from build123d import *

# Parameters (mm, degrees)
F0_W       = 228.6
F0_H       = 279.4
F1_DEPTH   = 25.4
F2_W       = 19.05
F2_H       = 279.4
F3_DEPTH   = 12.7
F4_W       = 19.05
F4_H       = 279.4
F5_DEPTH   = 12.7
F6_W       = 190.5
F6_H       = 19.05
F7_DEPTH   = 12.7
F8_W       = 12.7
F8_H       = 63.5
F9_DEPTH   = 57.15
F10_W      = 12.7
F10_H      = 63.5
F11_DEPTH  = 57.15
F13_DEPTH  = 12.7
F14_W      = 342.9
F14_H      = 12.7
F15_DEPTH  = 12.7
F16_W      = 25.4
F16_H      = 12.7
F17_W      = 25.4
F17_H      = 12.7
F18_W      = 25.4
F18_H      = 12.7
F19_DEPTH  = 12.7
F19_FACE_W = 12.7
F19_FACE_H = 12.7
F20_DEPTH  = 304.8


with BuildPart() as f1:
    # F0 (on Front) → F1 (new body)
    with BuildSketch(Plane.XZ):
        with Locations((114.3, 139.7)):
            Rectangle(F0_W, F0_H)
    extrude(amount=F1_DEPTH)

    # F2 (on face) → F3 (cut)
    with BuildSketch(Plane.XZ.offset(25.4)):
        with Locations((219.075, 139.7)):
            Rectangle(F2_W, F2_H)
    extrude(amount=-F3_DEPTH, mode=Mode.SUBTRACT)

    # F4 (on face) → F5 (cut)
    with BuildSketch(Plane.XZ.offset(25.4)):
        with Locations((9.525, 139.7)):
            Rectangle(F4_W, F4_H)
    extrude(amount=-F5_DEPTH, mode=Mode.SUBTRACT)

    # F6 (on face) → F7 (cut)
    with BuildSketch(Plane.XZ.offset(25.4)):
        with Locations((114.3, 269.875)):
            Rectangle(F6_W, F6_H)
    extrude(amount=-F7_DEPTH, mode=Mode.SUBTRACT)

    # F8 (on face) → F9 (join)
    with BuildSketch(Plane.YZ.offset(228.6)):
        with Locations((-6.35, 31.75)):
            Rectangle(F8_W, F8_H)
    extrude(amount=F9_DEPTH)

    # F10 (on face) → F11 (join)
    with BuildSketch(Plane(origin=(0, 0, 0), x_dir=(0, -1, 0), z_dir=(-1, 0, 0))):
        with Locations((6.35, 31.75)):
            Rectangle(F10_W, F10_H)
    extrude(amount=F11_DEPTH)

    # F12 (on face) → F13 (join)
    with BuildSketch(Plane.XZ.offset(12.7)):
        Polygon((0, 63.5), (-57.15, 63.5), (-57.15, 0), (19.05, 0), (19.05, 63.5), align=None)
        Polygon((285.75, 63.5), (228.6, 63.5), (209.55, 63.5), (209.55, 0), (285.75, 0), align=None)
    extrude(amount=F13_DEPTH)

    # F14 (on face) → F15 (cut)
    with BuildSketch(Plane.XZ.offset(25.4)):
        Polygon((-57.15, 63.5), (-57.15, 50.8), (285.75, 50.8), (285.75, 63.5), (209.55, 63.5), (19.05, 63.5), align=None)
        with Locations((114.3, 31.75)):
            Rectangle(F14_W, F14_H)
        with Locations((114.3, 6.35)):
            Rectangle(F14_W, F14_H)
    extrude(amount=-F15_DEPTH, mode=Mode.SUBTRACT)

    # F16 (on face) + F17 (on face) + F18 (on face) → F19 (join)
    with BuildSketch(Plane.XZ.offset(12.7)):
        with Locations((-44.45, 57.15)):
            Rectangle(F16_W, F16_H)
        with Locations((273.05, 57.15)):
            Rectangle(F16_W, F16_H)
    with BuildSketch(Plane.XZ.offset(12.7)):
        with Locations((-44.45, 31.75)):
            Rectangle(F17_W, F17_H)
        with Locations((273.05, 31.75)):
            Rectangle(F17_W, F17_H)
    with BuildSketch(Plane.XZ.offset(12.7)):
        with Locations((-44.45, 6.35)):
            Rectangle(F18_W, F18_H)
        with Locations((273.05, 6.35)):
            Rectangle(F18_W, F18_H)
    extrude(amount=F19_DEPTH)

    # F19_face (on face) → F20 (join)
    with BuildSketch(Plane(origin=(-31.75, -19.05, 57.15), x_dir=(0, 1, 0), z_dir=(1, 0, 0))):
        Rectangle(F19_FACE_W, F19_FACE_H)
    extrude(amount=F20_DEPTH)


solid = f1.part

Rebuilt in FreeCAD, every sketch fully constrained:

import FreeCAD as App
import Part
import Sketcher
from FreeCAD import Vector
Q = App.Units.Quantity


def add_polygon(sketch, points):
    """Adds a closed chain of lines whose ends are joined by coincident constraints."""
    first, n = sketch.GeometryCount, len(points)
    for a, b in zip(points, points[1:] + points[:1]):
        sketch.addGeometry(Part.LineSegment(App.Vector(*a, 0), App.Vector(*b, 0)), False)
    for i in range(n):
        sketch.addConstraint(Sketcher.Constraint("Coincident", first + i, 2, first + (i + 1) % n, 1))

doc = App.newDocument("Part")
params = doc.addObject("Spreadsheet::Sheet", "Params")
for row, (alias, value) in enumerate([
    ("sketch1_width", "9 in"),
    ("sketch1_height", "11 in"),
    ("pad1_length", "1 in"),
    ("sketch2_height", "11 in"),
    ("sketch2_width", "0.75 in"),
    ("pocket1_length", "0.5 in"),
    ("sketch3_height", "11 in"),
    ("sketch3_width", "0.75 in"),
    ("pocket2_length", "0.5 in"),
    ("sketch4_width", "7.5 in"),
    ("sketch4_height", "0.75 in"),
    ("pocket3_length", "0.5 in"),
    ("sketch5_width", "0.5 in"),
    ("sketch5_height", "2.5 in"),
    ("pad2_length", "2.25 in"),
    ("sketch6_width", "0.5 in"),
    ("sketch6_height", "2.5 in"),
    ("pad3_length", "2.25 in"),
    ("sketch7_width", "3 in"),
    ("sketch7_height", "2.5 in"),
    ("pad4_length", "0.5 in"),
    ("sketch8_width", "13.5 in"),
    ("sketch8_height", "0.5 in"),
    ("pocket4_length", "0.5 in"),
    ("sketch9_width", "1 in"),
    ("sketch9_height", "0.5 in"),
    ("pad5_length", "0.5 in"),
    ("sketch10_width", "0.5 in"),
    ("pad6_length", "12 in"),
], start=1):
    params.set(f"A{row}", alias)
    params.set(f"B{row}", "=" + value)
    params.setAlias(f"B{row}", alias)

body = doc.addObject("PartDesign::Body", "Body")

sketch1 = doc.addObject("Sketcher::SketchObject", "Sketch")
body.addObject(sketch1)
sketch1.AttachmentSupport = (doc.XZ_Plane, [""])
sketch1.MapMode = "FlatFace"
add_polygon(sketch1, [(0, 279.4), (0, 0), (228.6, 0), (228.6, 279.4)])
sketch1.addConstraint(Sketcher.Constraint("Vertical", 0))
sketch1.addConstraint(Sketcher.Constraint("Horizontal", 1))
sketch1.addConstraint(Sketcher.Constraint("Vertical", 2))
sketch1.addConstraint(Sketcher.Constraint("Horizontal", 3))
sketch1.addConstraint(Sketcher.Constraint("Coincident", 0, 2, -1, 1))
sketch1.addConstraint(Sketcher.Constraint("DistanceX", 1, 1, 1, 2, Q("9 in")))
sketch1.addConstraint(Sketcher.Constraint("DistanceY", 0, 2, 0, 1, Q("11 in")))
sketch1.setExpression("Constraints[9]", "Params.sketch1_width")
sketch1.setExpression("Constraints[10]", "Params.sketch1_height")
pad1 = doc.addObject("PartDesign::Pad", "Pad")
body.addObject(pad1)
pad1.Profile = sketch1
pad1.setExpression("Length", "Params.pad1_length")

sketch2 = doc.addObject("Sketcher::SketchObject", "Sketch001")
body.addObject(sketch2)
sketch2.AttachmentSupport = (doc.XZ_Plane, [""])
sketch2.MapMode = "FlatFace"
sketch2.AttachmentOffset = App.Placement(Vector(0, 0, 1 * 25.4), App.Rotation())
add_polygon(sketch2, [(209.55, 279.4), (209.55, 0), (228.6, 0), (228.6, 279.4)])
sketch2.addConstraint(Sketcher.Constraint("Vertical", 0))
sketch2.addConstraint(Sketcher.Constraint("Horizontal", 1))
sketch2.addConstraint(Sketcher.Constraint("Vertical", 2))
sketch2.addConstraint(Sketcher.Constraint("Horizontal", 3))
sketch2.addConstraint(Sketcher.Constraint("PointOnObject", 0, 2, -1))
sketch2.addConstraint(Sketcher.Constraint("DistanceY", 0, 2, 0, 1, Q("11 in")))
sketch2.addConstraint(Sketcher.Constraint("DistanceX", -1, 1, 1, 2, Q("9 in")))
sketch2.addConstraint(Sketcher.Constraint("DistanceX", 1, 1, 1, 2, Q("0.75 in")))
sketch2.setExpression("Constraints[9]", "Params.sketch2_height")
sketch2.setExpression("Constraints[11]", "Params.sketch2_width")
pocket1 = doc.addObject("PartDesign::Pocket", "Pocket")
body.addObject(pocket1)
pocket1.Profile = sketch2
pocket1.setExpression("Length", "Params.pocket1_length")

sketch3 = doc.addObject("Sketcher::SketchObject", "Sketch002")
body.addObject(sketch3)
sketch3.AttachmentSupport = (doc.XZ_Plane, [""])
sketch3.MapMode = "FlatFace"
sketch3.AttachmentOffset = App.Placement(Vector(0, 0, 1 * 25.4), App.Rotation())
add_polygon(sketch3, [(0, 279.4), (0, 0), (19.05, 0), (19.05, 279.4)])
sketch3.addConstraint(Sketcher.Constraint("Vertical", 0))
sketch3.addConstraint(Sketcher.Constraint("Horizontal", 1))
sketch3.addConstraint(Sketcher.Constraint("Vertical", 2))
sketch3.addConstraint(Sketcher.Constraint("Horizontal", 3))
sketch3.addConstraint(Sketcher.Constraint("Coincident", 0, 2, -1, 1))
sketch3.addConstraint(Sketcher.Constraint("DistanceY", 0, 2, 0, 1, Q("11 in")))
sketch3.addConstraint(Sketcher.Constraint("DistanceX", 1, 1, 1, 2, Q("0.75 in")))
sketch3.setExpression("Constraints[9]", "Params.sketch3_height")
sketch3.setExpression("Constraints[10]", "Params.sketch3_width")
pocket2 = doc.addObject("PartDesign::Pocket", "Pocket001")
body.addObject(pocket2)
pocket2.Profile = sketch3
pocket2.setExpression("Length", "Params.pocket2_length")

sketch4 = doc.addObject("Sketcher::SketchObject", "Sketch003")
body.addObject(sketch4)
sketch4.AttachmentSupport = (doc.XZ_Plane, [""])
sketch4.MapMode = "FlatFace"
sketch4.AttachmentOffset = App.Placement(Vector(0, 0, 1 * 25.4), App.Rotation())
add_polygon(sketch4, [(19.05, 279.4), (19.05, 260.35), (209.55, 260.35), (209.55, 279.4)])
sketch4.addConstraint(Sketcher.Constraint("Vertical", 0))
sketch4.addConstraint(Sketcher.Constraint("Horizontal", 1))
sketch4.addConstraint(Sketcher.Constraint("Vertical", 2))
sketch4.addConstraint(Sketcher.Constraint("Horizontal", 3))
sketch4.addConstraint(Sketcher.Constraint("DistanceX", 1, 1, 1, 2, Q("7.5 in")))
sketch4.addConstraint(Sketcher.Constraint("DistanceY", -1, 1, 2, 2, Q("11 in")))
sketch4.addConstraint(Sketcher.Constraint("DistanceY", 0, 2, 0, 1, Q("0.75 in")))
sketch4.addConstraint(Sketcher.Constraint("DistanceX", -1, 1, 0, 2, Q("0.75 in")))
sketch4.setExpression("Constraints[8]", "Params.sketch4_width")
sketch4.setExpression("Constraints[10]", "Params.sketch4_height")
pocket3 = doc.addObject("PartDesign::Pocket", "Pocket002")
body.addObject(pocket3)
pocket3.Profile = sketch4
pocket3.setExpression("Length", "Params.pocket3_length")

sketch5 = doc.addObject("Sketcher::SketchObject", "Sketch004")
body.addObject(sketch5)
sketch5.AttachmentSupport = (doc.YZ_Plane, [""])
sketch5.MapMode = "FlatFace"
sketch5.AttachmentOffset = App.Placement(Vector(0, 0, 9 * 25.4), App.Rotation())
add_polygon(sketch5, [(-12.7, 63.5), (-12.7, 0), (0, 0), (0, 63.5)])
sketch5.addConstraint(Sketcher.Constraint("Vertical", 0))
sketch5.addConstraint(Sketcher.Constraint("Horizontal", 1))
sketch5.addConstraint(Sketcher.Constraint("Vertical", 2))
sketch5.addConstraint(Sketcher.Constraint("Horizontal", 3))
sketch5.addConstraint(Sketcher.Constraint("Coincident", 1, 2, -1, 1))
sketch5.addConstraint(Sketcher.Constraint("DistanceX", 1, 1, 1, 2, Q("0.5 in")))
sketch5.addConstraint(Sketcher.Constraint("DistanceY", 0, 2, 0, 1, Q("2.5 in")))
sketch5.setExpression("Constraints[9]", "Params.sketch5_width")
sketch5.setExpression("Constraints[10]", "Params.sketch5_height")
pad2 = doc.addObject("PartDesign::Pad", "Pad001")
body.addObject(pad2)
pad2.Profile = sketch5
pad2.setExpression("Length", "Params.pad2_length")

sketch6 = doc.addObject("Sketcher::SketchObject", "Sketch005")
body.addObject(sketch6)
sketch6.AttachmentSupport = (doc.YZ_Plane, [""])
sketch6.MapMode = "FlatFace"
add_polygon(sketch6, [(0, 63.5), (0, 0), (-12.7, 0), (-12.7, 63.5)])
sketch6.addConstraint(Sketcher.Constraint("Vertical", 0))
sketch6.addConstraint(Sketcher.Constraint("Horizontal", 1))
sketch6.addConstraint(Sketcher.Constraint("Vertical", 2))
sketch6.addConstraint(Sketcher.Constraint("Horizontal", 3))
sketch6.addConstraint(Sketcher.Constraint("Coincident", 0, 2, -1, 1))
sketch6.addConstraint(Sketcher.Constraint("DistanceX", 1, 2, 1, 1, Q("0.5 in")))
sketch6.addConstraint(Sketcher.Constraint("DistanceY", 0, 2, 0, 1, Q("2.5 in")))
sketch6.setExpression("Constraints[9]", "Params.sketch6_width")
sketch6.setExpression("Constraints[10]", "Params.sketch6_height")
pad3 = doc.addObject("PartDesign::Pad", "Pad002")
body.addObject(pad3)
pad3.Profile = sketch6
pad3.setExpression("Length", "Params.pad3_length")
pad3.Reversed = True

sketch7 = doc.addObject("Sketcher::SketchObject", "Sketch006")
body.addObject(sketch7)
sketch7.AttachmentSupport = (doc.XZ_Plane, [""])
sketch7.MapMode = "FlatFace"
sketch7.AttachmentOffset = App.Placement(Vector(0, 0, 0.5 * 25.4), App.Rotation())
add_polygon(sketch7, [(-57.15, 63.5), (-57.15, 0), (19.05, 0), (19.05, 63.5)])
add_polygon(sketch7, [(285.75, 63.5), (209.55, 63.5), (209.55, 0), (285.75, 0)])
sketch7.addConstraint(Sketcher.Constraint("Vertical", 0))
sketch7.addConstraint(Sketcher.Constraint("Horizontal", 1))
sketch7.addConstraint(Sketcher.Constraint("Vertical", 2))
sketch7.addConstraint(Sketcher.Constraint("Horizontal", 3))
sketch7.addConstraint(Sketcher.Constraint("Horizontal", 4))
sketch7.addConstraint(Sketcher.Constraint("Vertical", 5))
sketch7.addConstraint(Sketcher.Constraint("Horizontal", 6))
sketch7.addConstraint(Sketcher.Constraint("Vertical", 7))
sketch7.addConstraint(Sketcher.Constraint("PointOnObject", 0, 2, -1))
sketch7.addConstraint(Sketcher.Constraint("PointOnObject", 5, 2, -1))
sketch7.addConstraint(Sketcher.Constraint("Horizontal", 3, 2, 4, 2))
sketch7.addConstraint(Sketcher.Constraint("Equal", 3, 4))
sketch7.addConstraint(Sketcher.Constraint("DistanceX", 1, 1, 1, 2, Q("3 in")))
sketch7.addConstraint(Sketcher.Constraint("DistanceY", 0, 2, 0, 1, Q("2.5 in")))
sketch7.addConstraint(Sketcher.Constraint("DistanceX", 2, 2, 4, 2, Q("7.5 in")))
sketch7.addConstraint(Sketcher.Constraint("DistanceX", 0, 2, -1, 1, Q("2.25 in")))
sketch7.setExpression("Constraints[20]", "Params.sketch7_width")
sketch7.setExpression("Constraints[21]", "Params.sketch7_height")
pad4 = doc.addObject("PartDesign::Pad", "Pad003")
body.addObject(pad4)
pad4.Profile = sketch7
pad4.setExpression("Length", "Params.pad4_length")

sketch8 = doc.addObject("Sketcher::SketchObject", "Sketch007")
body.addObject(sketch8)
sketch8.AttachmentSupport = (doc.XZ_Plane, [""])
sketch8.MapMode = "FlatFace"
sketch8.AttachmentOffset = App.Placement(Vector(0, 0, 1 * 25.4), App.Rotation())
add_polygon(sketch8, [(-57.15, 63.5), (-57.15, 50.8), (285.75, 50.8), (285.75, 63.5)])
add_polygon(sketch8, [(-57.15, 38.1), (-57.15, 25.4), (285.75, 25.4), (285.75, 38.1)])
add_polygon(sketch8, [(-57.15, 12.7), (-57.15, 0), (285.75, 0), (285.75, 12.7)])
sketch8.addConstraint(Sketcher.Constraint("Vertical", 0))
sketch8.addConstraint(Sketcher.Constraint("Horizontal", 1))
sketch8.addConstraint(Sketcher.Constraint("Vertical", 2))
sketch8.addConstraint(Sketcher.Constraint("Horizontal", 3))
sketch8.addConstraint(Sketcher.Constraint("Vertical", 4))
sketch8.addConstraint(Sketcher.Constraint("Horizontal", 5))
sketch8.addConstraint(Sketcher.Constraint("Vertical", 6))
sketch8.addConstraint(Sketcher.Constraint("Horizontal", 7))
sketch8.addConstraint(Sketcher.Constraint("Vertical", 8))
sketch8.addConstraint(Sketcher.Constraint("Horizontal", 9))
sketch8.addConstraint(Sketcher.Constraint("Vertical", 10))
sketch8.addConstraint(Sketcher.Constraint("Horizontal", 11))
sketch8.addConstraint(Sketcher.Constraint("PointOnObject", 8, 2, -1))
sketch8.addConstraint(Sketcher.Constraint("Vertical", 3, 2, 4, 2))
sketch8.addConstraint(Sketcher.Constraint("Vertical", 2, 2, 5, 2))
sketch8.addConstraint(Sketcher.Constraint("Vertical", 7, 2, 8, 2))
sketch8.addConstraint(Sketcher.Constraint("Vertical", 6, 2, 9, 2))
sketch8.addConstraint(Sketcher.Constraint("Equal", 2, 4))
sketch8.addConstraint(Sketcher.Constraint("Equal", 6, 8))
sketch8.addConstraint(Sketcher.Constraint("DistanceX", 1, 1, 1, 2, Q("13.5 in")))
sketch8.addConstraint(Sketcher.Constraint("DistanceY", 0, 2, 0, 1, Q("0.5 in")))
sketch8.addConstraint(Sketcher.Constraint("DistanceY", -1, 1, 0, 2, Q("2 in")))
sketch8.addConstraint(Sketcher.Constraint("DistanceY", -1, 1, 4, 2, Q("1 in")))
sketch8.addConstraint(Sketcher.Constraint("DistanceX", 0, 2, -1, 1, Q("2.25 in")))
sketch8.setExpression("Constraints[31]", "Params.sketch8_width")
sketch8.setExpression("Constraints[32]", "Params.sketch8_height")
pocket4 = doc.addObject("PartDesign::Pocket", "Pocket003")
body.addObject(pocket4)
pocket4.Profile = sketch8
pocket4.setExpression("Length", "Params.pocket4_length")

sketch9 = doc.addObject("Sketcher::SketchObject", "Sketch008")
body.addObject(sketch9)
sketch9.AttachmentSupport = (doc.XZ_Plane, [""])
sketch9.MapMode = "FlatFace"
sketch9.AttachmentOffset = App.Placement(Vector(0, 0, 0.5 * 25.4), App.Rotation())
add_polygon(sketch9, [(-57.15, 63.5), (-57.15, 50.8), (-31.75, 50.8), (-31.75, 63.5)])
add_polygon(sketch9, [(260.35, 63.5), (260.35, 50.8), (285.75, 50.8), (285.75, 63.5)])
add_polygon(sketch9, [(-57.15, 38.1), (-57.15, 25.4), (-31.75, 25.4), (-31.75, 38.1)])
add_polygon(sketch9, [(260.35, 38.1), (260.35, 25.4), (285.75, 25.4), (285.75, 38.1)])
add_polygon(sketch9, [(-57.15, 12.7), (-57.15, 0), (-31.75, 0), (-31.75, 12.7)])
add_polygon(sketch9, [(260.35, 12.7), (260.35, 0), (285.75, 0), (285.75, 12.7)])
sketch9.addConstraint(Sketcher.Constraint("Vertical", 0))
sketch9.addConstraint(Sketcher.Constraint("Horizontal", 1))
sketch9.addConstraint(Sketcher.Constraint("Vertical", 2))
sketch9.addConstraint(Sketcher.Constraint("Horizontal", 3))
sketch9.addConstraint(Sketcher.Constraint("Vertical", 4))
sketch9.addConstraint(Sketcher.Constraint("Horizontal", 5))
sketch9.addConstraint(Sketcher.Constraint("Vertical", 6))
sketch9.addConstraint(Sketcher.Constraint("Horizontal", 7))
sketch9.addConstraint(Sketcher.Constraint("Vertical", 8))
sketch9.addConstraint(Sketcher.Constraint("Horizontal", 9))
sketch9.addConstraint(Sketcher.Constraint("Vertical", 10))
sketch9.addConstraint(Sketcher.Constraint("Horizontal", 11))
sketch9.addConstraint(Sketcher.Constraint("Vertical", 12))
sketch9.addConstraint(Sketcher.Constraint("Horizontal", 13))
sketch9.addConstraint(Sketcher.Constraint("Vertical", 14))
sketch9.addConstraint(Sketcher.Constraint("Horizontal", 15))
sketch9.addConstraint(Sketcher.Constraint("Vertical", 16))
sketch9.addConstraint(Sketcher.Constraint("Horizontal", 17))
sketch9.addConstraint(Sketcher.Constraint("Vertical", 18))
sketch9.addConstraint(Sketcher.Constraint("Horizontal", 19))
sketch9.addConstraint(Sketcher.Constraint("Vertical", 20))
sketch9.addConstraint(Sketcher.Constraint("Horizontal", 21))
sketch9.addConstraint(Sketcher.Constraint("Vertical", 22))
sketch9.addConstraint(Sketcher.Constraint("Horizontal", 23))
sketch9.addConstraint(Sketcher.Constraint("PointOnObject", 16, 2, -1))
sketch9.addConstraint(Sketcher.Constraint("PointOnObject", 20, 2, -1))
sketch9.addConstraint(Sketcher.Constraint("Horizontal", 1, 2, 4, 2))
sketch9.addConstraint(Sketcher.Constraint("Horizontal", 3, 2, 6, 2))
sketch9.addConstraint(Sketcher.Constraint("Horizontal", 9, 2, 12, 2))
sketch9.addConstraint(Sketcher.Constraint("Horizontal", 11, 2, 14, 2))
sketch9.addConstraint(Sketcher.Constraint("Horizontal", 19, 2, 22, 2))
sketch9.addConstraint(Sketcher.Constraint("Vertical", 3, 2, 8, 2))
sketch9.addConstraint(Sketcher.Constraint("Vertical", 2, 2, 9, 2))
sketch9.addConstraint(Sketcher.Constraint("Vertical", 7, 2, 12, 2))
sketch9.addConstraint(Sketcher.Constraint("Vertical", 6, 2, 13, 2))
sketch9.addConstraint(Sketcher.Constraint("Vertical", 11, 2, 16, 2))
sketch9.addConstraint(Sketcher.Constraint("Vertical", 10, 2, 17, 2))
sketch9.addConstraint(Sketcher.Constraint("Vertical", 15, 2, 20, 2))
sketch9.addConstraint(Sketcher.Constraint("Vertical", 14, 2, 21, 2))
sketch9.addConstraint(Sketcher.Constraint("Equal", 3, 5))
sketch9.addConstraint(Sketcher.Constraint("Equal", 6, 8))
sketch9.addConstraint(Sketcher.Constraint("Equal", 14, 16))
sketch9.addConstraint(Sketcher.Constraint("DistanceX", 1, 1, 1, 2, Q("1 in")))
sketch9.addConstraint(Sketcher.Constraint("DistanceY", 0, 2, 0, 1, Q("0.5 in")))
sketch9.addConstraint(Sketcher.Constraint("DistanceY", -1, 1, 0, 2, Q("2 in")))
sketch9.addConstraint(Sketcher.Constraint("DistanceY", -1, 1, 8, 2, Q("1 in")))
sketch9.addConstraint(Sketcher.Constraint("DistanceX", 1, 2, 4, 2, Q("11.5 in")))
sketch9.addConstraint(Sketcher.Constraint("DistanceX", 0, 2, -1, 1, Q("2.25 in")))
sketch9.setExpression("Constraints[66]", "Params.sketch9_width")
sketch9.setExpression("Constraints[67]", "Params.sketch9_height")
pad5 = doc.addObject("PartDesign::Pad", "Pad004")
body.addObject(pad5)
pad5.Profile = sketch9
pad5.setExpression("Length", "Params.pad5_length")

sketch10 = doc.addObject("Sketcher::SketchObject", "Sketch009")
body.addObject(sketch10)
sketch10.AttachmentSupport = (doc.YZ_Plane, [""])
sketch10.MapMode = "FlatFace"
sketch10.AttachmentOffset = App.Placement(Vector(0, 0, -1.25 * 25.4), App.Rotation())
add_polygon(sketch10, [(-25.4, 63.5), (-25.4, 50.8), (-12.7, 50.8), (-12.7, 63.5)])
sketch10.addConstraint(Sketcher.Constraint("Vertical", 0))
sketch10.addConstraint(Sketcher.Constraint("Horizontal", 1))
sketch10.addConstraint(Sketcher.Constraint("Vertical", 2))
sketch10.addConstraint(Sketcher.Constraint("Horizontal", 3))
sketch10.addConstraint(Sketcher.Constraint("Equal", 3, 0))
sketch10.addConstraint(Sketcher.Constraint("DistanceX", 1, 1, 1, 2, Q("0.5 in")))
sketch10.addConstraint(Sketcher.Constraint("DistanceX", 0, 2, -1, 1, Q("1 in")))
sketch10.addConstraint(Sketcher.Constraint("DistanceY", -1, 1, 0, 2, Q("2 in")))
sketch10.setExpression("Constraints[9]", "Params.sketch10_width")
pad6 = doc.addObject("PartDesign::Pad", "Pad005")
body.addObject(pad6)
pad6.Profile = sketch10
pad6.setExpression("Length", "Params.pad6_length")

doc.recompute()
